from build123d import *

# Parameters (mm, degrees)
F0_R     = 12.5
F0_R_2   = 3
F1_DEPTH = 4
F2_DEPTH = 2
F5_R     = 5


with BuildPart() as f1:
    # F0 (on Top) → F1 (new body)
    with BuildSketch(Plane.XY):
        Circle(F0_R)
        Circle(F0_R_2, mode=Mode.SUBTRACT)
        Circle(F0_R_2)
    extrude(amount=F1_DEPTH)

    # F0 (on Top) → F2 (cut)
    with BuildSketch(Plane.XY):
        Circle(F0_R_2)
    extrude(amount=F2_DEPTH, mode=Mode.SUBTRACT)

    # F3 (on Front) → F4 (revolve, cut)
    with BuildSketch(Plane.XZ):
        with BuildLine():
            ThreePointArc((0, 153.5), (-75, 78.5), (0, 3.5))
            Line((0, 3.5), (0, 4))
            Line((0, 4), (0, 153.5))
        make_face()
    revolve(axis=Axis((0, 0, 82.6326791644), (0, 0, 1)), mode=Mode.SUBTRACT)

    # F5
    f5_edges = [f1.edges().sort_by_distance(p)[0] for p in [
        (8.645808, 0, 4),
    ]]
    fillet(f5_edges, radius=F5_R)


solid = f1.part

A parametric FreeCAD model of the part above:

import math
import FreeCAD as App
import Part
import Sketcher
from FreeCAD import Vector
Q = App.Units.Quantity


def edges_at(feature, points):
    """Names of the edges that pass closest to the given points."""
    edges = feature.Shape.Edges
    near = lambda p: min(range(len(edges)), key=lambda i: edges[i].distToShape(Part.Vertex(*p))[0])
    return sorted({f"Edge{near(p) + 1}" for p in points})

doc = App.newDocument("Part")
body = doc.addObject("PartDesign::Body", "Body")

# Sketch on XY plane
sketch1 = doc.addObject("Sketcher::SketchObject", "Sketch")
body.addObject(sketch1)
sketch1.AttachmentSupport = (doc.XY_Plane, [""])
sketch1.MapMode = "FlatFace"
sketch1.addGeometry(Part.Circle(Vector(0, 0, 0), Vector(0, 0, 1), 12.5), False)
sketch1.addConstraint([
    Sketcher.Constraint("Coincident", 0, 3, -1, 1),
    Sketcher.Constraint("Diameter", 0, Q("25 mm")),
])
pad1 = doc.addObject("PartDesign::Pad", "Pad")
body.addObject(pad1)
pad1.Profile = sketch1
pad1.Length = 4

# Sketch on XY plane
sketch2 = doc.addObject("Sketcher::SketchObject", "Sketch001")
body.addObject(sketch2)
sketch2.AttachmentSupport = (doc.XY_Plane, [""])
sketch2.MapMode = "FlatFace"
sketch2.addGeometry(Part.Circle(Vector(0, 0, 0), Vector(0, 0, 1), 3), False)
sketch2.addConstraint([
    Sketcher.Constraint("Coincident", 0, 3, -1, 1),
    Sketcher.Constraint("Diameter", 0, Q("6 mm")),
])
pocket1 = doc.addObject("PartDesign::Pocket", "Pocket")
body.addObject(pocket1)
pocket1.Profile = sketch2
pocket1.Length = 2
pocket1.Reversed = True

# Sketch on XZ plane
sketch3 = doc.addObject("Sketcher::SketchObject", "Sketch002")
body.addObject(sketch3)
sketch3.AttachmentSupport = (doc.XZ_Plane, [""])
sketch3.MapMode = "FlatFace"
sketch3.addGeometry([
    Part.ArcOfCircle(Part.Circle(Vector(0, 78.5, 0), Vector(0, 0, 1), 75), math.radians(90), math.radians(270)),
    Part.LineSegment(Vector(0, 3.5, 0), Vector(0, 153.5, 0)),
], False)
sketch3.addConstraint([
    Sketcher.Constraint("Coincident", 0, 1, 1, 2),
    Sketcher.Constraint("Coincident", 1, 1, 0, 2),
    Sketcher.Constraint("Vertical", 1),
    Sketcher.Constraint("PointOnObject", 0, 3, -2),
    Sketcher.Constraint("PointOnObject", 0, 1, -2),
    Sketcher.Constraint("Radius", 0, Q("75 mm")),
    Sketcher.Constraint("DistanceY", -1, 1, 0, 3, Q("78.5 mm")),
])
groove = doc.addObject("PartDesign::Groove", "Groove")
body.addObject(groove)
groove.Profile = sketch3
groove.ReferenceAxis = (sketch3, ["V_Axis"])
groove.Angle = 360
doc.recompute()

fillet = doc.addObject("PartDesign::Fillet", "Fillet")
body.addObject(fillet)
fillet.Base = (groove, edges_at(groove, [(8.646, 0, 4)]))
fillet.Radius = 5

doc.recompute()
